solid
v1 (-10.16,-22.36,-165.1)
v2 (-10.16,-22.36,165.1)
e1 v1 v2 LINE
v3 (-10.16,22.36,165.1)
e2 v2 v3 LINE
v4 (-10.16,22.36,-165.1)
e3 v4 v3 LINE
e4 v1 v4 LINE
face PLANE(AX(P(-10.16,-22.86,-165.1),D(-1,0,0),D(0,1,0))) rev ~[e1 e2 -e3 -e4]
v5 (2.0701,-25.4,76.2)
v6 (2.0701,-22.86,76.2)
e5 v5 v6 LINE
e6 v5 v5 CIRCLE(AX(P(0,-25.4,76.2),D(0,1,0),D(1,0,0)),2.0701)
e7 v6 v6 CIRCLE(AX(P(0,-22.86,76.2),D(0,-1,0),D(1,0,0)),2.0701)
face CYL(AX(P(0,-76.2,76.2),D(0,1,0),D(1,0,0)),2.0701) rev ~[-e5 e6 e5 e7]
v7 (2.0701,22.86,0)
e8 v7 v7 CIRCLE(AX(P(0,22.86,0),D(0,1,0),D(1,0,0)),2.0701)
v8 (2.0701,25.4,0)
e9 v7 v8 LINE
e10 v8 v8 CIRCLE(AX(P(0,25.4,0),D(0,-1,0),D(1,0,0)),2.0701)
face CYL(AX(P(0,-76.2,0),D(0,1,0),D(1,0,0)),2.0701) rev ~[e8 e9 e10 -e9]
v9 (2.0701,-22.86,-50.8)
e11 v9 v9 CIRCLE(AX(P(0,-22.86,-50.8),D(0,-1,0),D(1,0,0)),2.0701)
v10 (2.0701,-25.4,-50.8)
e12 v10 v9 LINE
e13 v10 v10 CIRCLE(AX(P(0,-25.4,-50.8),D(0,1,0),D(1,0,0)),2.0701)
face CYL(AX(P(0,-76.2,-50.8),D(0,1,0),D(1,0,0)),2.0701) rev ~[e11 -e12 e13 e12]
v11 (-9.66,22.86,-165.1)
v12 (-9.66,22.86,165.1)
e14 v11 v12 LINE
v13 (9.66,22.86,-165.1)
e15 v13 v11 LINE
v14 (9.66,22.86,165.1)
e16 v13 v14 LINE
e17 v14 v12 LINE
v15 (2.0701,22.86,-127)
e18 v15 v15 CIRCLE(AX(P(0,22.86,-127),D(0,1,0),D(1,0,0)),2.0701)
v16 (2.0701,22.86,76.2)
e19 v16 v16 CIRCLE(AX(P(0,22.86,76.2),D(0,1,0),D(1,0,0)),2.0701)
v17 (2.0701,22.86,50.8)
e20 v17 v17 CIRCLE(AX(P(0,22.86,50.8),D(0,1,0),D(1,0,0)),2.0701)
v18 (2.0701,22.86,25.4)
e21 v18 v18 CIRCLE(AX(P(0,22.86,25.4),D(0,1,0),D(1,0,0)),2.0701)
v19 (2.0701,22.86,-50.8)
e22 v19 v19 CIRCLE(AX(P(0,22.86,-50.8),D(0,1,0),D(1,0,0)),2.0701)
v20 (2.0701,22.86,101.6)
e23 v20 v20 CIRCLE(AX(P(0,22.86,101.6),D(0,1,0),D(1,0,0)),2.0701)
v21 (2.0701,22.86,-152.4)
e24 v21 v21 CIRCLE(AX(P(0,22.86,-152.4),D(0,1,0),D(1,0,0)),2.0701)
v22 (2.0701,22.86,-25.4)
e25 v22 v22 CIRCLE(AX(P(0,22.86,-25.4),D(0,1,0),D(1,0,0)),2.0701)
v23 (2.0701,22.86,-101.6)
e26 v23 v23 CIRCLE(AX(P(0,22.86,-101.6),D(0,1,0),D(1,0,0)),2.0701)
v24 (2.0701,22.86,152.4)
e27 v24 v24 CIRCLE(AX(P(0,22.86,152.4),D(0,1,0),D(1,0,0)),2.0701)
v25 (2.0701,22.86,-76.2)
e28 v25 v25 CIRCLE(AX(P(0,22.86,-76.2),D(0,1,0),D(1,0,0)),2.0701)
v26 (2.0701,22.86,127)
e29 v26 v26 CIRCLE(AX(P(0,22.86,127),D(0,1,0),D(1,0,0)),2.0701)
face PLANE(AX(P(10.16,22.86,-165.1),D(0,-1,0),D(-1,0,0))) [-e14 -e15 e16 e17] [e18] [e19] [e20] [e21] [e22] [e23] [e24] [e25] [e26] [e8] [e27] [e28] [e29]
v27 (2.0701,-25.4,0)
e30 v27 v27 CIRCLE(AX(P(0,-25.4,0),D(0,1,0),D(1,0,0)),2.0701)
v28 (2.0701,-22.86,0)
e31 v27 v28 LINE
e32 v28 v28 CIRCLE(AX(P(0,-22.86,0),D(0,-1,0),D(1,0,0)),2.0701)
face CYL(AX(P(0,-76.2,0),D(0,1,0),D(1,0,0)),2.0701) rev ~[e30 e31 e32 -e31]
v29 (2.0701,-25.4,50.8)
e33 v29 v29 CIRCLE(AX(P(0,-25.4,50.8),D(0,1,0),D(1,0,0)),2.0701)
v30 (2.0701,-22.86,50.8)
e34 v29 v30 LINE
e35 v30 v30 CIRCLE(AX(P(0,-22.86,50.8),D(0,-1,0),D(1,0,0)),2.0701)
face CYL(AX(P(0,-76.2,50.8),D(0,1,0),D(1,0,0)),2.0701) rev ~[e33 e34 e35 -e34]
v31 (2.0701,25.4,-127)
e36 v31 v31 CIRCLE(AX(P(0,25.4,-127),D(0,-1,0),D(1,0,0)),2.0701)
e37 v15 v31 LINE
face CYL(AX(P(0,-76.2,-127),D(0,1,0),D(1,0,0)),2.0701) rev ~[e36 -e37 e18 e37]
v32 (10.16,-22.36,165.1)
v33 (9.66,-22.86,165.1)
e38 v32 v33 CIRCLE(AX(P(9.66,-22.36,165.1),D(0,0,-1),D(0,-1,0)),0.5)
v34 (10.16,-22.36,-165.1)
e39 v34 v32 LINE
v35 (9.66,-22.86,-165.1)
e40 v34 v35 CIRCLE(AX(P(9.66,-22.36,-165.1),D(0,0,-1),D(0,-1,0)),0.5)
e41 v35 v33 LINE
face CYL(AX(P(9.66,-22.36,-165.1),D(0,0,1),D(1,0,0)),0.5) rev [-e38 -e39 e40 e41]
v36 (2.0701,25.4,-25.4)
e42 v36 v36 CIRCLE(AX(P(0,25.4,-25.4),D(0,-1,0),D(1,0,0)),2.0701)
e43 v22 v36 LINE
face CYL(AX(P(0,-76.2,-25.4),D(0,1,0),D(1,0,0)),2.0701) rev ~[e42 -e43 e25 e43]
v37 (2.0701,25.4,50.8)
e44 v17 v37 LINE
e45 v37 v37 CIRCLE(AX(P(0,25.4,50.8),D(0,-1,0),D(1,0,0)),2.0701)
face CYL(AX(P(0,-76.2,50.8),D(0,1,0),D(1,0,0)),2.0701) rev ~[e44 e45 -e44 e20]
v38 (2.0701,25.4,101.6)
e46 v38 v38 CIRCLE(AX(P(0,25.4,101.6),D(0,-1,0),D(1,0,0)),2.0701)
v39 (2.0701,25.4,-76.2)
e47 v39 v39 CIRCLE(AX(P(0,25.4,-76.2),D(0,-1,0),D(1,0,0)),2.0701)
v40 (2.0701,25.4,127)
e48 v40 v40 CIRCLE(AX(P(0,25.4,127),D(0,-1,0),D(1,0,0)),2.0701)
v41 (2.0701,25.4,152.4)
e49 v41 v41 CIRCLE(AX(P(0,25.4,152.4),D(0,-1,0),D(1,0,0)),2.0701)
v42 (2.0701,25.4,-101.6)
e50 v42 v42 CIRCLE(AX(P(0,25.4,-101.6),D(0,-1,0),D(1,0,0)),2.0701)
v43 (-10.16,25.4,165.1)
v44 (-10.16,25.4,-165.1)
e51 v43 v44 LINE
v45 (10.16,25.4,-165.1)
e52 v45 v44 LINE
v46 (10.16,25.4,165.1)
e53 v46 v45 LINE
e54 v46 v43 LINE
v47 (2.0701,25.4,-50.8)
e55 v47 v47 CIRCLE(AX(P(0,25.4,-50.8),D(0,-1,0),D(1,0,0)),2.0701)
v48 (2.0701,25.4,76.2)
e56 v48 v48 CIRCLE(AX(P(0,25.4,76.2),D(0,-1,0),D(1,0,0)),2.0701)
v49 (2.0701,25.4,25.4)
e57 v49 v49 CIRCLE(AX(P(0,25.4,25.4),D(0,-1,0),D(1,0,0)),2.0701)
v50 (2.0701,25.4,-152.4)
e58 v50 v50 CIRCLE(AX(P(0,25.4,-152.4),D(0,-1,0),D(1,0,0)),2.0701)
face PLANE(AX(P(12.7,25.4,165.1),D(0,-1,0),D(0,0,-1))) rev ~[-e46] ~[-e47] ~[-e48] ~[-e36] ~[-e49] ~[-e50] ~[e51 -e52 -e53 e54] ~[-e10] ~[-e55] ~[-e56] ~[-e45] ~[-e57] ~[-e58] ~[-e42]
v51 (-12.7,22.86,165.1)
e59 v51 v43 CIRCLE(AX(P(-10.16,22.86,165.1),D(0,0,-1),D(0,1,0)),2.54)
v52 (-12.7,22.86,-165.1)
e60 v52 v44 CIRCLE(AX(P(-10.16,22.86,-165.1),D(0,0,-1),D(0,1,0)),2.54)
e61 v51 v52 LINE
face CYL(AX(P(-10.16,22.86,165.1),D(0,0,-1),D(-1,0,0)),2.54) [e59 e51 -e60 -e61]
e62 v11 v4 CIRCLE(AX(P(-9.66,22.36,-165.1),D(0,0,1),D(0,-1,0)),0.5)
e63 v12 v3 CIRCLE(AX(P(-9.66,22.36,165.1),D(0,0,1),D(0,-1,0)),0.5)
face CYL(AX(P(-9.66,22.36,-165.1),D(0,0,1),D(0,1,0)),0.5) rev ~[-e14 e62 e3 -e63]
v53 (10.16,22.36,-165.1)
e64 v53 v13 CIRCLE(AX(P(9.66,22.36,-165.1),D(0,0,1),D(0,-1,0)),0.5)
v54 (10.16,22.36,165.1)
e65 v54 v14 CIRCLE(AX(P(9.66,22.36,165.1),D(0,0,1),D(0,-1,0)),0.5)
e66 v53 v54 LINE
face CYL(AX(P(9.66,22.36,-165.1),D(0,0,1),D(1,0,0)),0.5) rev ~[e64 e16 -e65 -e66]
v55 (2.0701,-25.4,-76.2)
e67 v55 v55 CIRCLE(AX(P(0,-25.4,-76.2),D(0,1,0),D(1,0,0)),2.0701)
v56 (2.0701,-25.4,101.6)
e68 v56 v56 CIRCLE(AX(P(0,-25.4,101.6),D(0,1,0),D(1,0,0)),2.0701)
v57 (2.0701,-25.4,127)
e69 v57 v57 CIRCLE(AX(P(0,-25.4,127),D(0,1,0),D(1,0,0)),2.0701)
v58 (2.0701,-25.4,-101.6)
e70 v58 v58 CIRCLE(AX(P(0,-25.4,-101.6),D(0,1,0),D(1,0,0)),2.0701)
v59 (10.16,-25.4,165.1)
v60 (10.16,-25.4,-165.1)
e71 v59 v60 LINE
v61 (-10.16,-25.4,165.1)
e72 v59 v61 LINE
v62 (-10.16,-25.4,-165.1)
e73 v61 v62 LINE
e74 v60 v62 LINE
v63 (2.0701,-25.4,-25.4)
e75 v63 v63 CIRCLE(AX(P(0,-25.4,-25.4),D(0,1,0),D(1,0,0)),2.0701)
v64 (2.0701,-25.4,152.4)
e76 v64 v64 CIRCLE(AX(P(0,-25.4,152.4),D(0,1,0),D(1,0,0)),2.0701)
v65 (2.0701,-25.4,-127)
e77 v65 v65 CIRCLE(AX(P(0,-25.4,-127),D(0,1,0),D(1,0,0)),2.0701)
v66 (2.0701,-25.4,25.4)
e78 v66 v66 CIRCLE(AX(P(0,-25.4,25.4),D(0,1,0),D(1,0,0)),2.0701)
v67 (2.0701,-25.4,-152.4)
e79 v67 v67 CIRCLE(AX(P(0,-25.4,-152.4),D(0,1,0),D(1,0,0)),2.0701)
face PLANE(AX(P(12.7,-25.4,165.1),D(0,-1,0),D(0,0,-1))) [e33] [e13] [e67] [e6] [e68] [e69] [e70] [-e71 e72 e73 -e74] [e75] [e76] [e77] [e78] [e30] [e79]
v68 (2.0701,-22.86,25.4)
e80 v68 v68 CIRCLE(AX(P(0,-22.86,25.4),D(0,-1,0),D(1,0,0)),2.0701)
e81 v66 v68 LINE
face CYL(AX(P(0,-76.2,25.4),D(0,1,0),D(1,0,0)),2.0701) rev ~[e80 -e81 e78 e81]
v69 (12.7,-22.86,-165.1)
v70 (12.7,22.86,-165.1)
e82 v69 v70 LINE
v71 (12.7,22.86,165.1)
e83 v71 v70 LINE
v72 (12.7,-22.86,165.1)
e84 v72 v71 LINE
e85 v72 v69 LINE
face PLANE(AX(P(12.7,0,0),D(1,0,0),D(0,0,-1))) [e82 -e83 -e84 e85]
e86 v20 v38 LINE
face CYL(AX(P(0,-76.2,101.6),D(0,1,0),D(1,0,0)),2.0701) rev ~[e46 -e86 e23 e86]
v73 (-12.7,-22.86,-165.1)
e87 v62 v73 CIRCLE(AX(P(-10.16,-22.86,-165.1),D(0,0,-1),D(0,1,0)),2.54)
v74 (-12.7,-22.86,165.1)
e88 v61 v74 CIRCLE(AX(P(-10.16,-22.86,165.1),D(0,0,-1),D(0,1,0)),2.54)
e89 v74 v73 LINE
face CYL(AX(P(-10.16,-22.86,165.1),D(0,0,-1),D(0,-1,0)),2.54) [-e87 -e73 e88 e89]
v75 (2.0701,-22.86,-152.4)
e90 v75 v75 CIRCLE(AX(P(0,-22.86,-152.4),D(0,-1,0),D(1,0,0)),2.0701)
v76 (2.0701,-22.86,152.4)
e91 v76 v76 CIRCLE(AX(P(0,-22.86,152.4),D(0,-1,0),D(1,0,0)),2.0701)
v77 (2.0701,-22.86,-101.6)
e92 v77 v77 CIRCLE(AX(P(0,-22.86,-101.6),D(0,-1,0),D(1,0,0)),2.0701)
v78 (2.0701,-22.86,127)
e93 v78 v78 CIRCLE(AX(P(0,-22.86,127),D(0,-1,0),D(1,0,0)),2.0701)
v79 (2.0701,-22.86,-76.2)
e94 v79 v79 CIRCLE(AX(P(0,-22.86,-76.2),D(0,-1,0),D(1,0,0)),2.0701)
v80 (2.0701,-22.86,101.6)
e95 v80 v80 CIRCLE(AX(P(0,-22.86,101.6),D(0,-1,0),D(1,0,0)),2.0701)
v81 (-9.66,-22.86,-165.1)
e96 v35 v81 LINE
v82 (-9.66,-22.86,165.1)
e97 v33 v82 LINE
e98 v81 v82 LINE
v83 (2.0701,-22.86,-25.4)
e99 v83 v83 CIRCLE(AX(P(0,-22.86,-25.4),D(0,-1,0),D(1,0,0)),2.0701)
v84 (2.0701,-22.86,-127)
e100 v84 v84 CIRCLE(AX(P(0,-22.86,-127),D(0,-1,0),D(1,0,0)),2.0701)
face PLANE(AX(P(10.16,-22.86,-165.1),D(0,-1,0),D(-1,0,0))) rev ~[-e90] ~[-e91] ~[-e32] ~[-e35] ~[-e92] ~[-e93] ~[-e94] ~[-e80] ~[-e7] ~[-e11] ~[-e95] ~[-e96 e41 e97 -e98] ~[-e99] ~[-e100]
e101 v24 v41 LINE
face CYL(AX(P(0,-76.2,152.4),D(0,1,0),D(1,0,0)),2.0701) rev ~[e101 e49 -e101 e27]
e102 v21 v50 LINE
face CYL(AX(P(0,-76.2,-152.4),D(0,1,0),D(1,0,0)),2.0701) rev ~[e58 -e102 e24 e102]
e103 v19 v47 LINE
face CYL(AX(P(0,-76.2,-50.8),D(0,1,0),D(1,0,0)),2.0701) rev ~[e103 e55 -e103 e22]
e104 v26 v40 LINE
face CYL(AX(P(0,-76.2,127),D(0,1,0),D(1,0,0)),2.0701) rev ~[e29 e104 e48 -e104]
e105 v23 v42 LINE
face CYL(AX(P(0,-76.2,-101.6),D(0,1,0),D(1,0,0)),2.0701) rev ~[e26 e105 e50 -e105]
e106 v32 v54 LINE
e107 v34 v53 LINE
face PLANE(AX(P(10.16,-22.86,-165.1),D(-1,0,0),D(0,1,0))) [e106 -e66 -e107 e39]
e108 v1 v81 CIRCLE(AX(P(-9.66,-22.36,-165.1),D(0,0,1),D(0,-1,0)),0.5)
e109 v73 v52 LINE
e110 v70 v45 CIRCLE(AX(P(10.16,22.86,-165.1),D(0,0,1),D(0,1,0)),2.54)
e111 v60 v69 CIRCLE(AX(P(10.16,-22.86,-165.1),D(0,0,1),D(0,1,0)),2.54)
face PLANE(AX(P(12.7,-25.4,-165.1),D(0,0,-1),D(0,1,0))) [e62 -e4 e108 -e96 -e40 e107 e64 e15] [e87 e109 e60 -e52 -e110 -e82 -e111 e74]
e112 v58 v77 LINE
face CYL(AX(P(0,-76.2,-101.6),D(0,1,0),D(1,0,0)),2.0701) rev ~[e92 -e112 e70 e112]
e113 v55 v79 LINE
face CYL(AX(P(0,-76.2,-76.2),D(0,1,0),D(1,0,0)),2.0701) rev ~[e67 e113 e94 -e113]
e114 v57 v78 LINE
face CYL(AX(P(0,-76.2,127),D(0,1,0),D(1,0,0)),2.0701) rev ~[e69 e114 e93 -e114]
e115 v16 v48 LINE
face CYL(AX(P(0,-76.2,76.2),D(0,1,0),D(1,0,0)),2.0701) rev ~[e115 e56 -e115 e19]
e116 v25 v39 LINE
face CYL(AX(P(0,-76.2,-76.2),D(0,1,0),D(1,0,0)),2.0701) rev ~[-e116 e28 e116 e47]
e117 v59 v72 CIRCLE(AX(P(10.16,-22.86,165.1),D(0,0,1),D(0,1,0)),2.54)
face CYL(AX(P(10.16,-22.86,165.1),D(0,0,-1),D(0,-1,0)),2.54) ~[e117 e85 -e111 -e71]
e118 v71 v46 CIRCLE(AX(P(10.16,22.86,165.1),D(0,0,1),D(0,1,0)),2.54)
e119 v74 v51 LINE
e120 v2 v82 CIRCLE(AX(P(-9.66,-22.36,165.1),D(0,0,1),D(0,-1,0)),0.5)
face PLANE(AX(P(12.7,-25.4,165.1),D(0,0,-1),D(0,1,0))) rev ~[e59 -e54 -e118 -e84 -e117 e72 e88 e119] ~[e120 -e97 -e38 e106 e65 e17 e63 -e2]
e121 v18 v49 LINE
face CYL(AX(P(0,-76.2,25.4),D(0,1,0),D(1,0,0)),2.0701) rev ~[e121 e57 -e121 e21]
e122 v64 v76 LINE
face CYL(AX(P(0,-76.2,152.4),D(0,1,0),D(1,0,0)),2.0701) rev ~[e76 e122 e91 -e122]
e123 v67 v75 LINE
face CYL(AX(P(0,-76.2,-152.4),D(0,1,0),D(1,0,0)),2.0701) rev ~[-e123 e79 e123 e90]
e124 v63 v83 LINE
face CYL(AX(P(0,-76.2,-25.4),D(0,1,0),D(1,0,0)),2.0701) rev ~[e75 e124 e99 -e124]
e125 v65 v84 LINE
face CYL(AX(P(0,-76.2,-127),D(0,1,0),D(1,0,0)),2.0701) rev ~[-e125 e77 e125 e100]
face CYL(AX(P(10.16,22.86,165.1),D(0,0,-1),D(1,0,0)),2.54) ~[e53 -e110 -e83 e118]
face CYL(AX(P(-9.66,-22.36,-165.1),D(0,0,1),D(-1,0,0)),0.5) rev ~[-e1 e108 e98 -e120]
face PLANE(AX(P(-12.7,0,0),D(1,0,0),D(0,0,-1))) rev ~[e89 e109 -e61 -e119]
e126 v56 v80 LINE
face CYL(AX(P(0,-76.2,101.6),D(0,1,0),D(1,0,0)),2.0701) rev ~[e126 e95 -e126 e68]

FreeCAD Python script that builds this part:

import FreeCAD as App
import Part
import Sketcher

V = App.Vector
Q = App.Units.Quantity


def edges_at(feature, points):
    """Names of the edges that pass closest to the given points."""
    edges = feature.Shape.Edges
    near = lambda p: min(range(len(edges)), key=lambda i: edges[i].distToShape(Part.Vertex(*p))[0])
    return sorted({f"Edge{near(p) + 1}" for p in points})


def add_polygon(sketch, points):
    """Adds a closed chain of lines whose ends are joined by coincident constraints."""
    first, n = sketch.GeometryCount, len(points)
    for a, b in zip(points, points[1:] + points[:1]):
        sketch.addGeometry(Part.LineSegment(App.Vector(*a, 0), App.Vector(*b, 0)), False)
    for i in range(n):
        sketch.addConstraint(Sketcher.Constraint("Coincident", first + i, 2, first + (i + 1) % n, 1))

doc = App.newDocument("Part")
body = doc.addObject("PartDesign::Body", "Body")

sketch1 = body.newObject("Sketcher::SketchObject", "Sketch")
sketch1.AttachmentSupport = (doc.getObject("YZ_Plane"), [""])
sketch1.MapMode = "FlatFace"
sketch1.AttachmentOffset = App.Placement(V(0, 0, 0.5 * 25.4), App.Rotation())
add_polygon(sketch1, [(25, 165), (-25, 165), (-25, -165), (25, -165)])
sketch1.addConstraint(Sketcher.Constraint("Horizontal", 0))
sketch1.addConstraint(Sketcher.Constraint("Vertical", 1))
sketch1.addConstraint(Sketcher.Constraint("Horizontal", 2))
sketch1.addConstraint(Sketcher.Constraint("Vertical", 3))
sketch1.addConstraint(Sketcher.Constraint("Symmetric", 0, 2, 2, 2, -1, 1))
sketch1.addConstraint(Sketcher.Constraint("DistanceX", 0, 2, 0, 1, Q("2 in")))
sketch1.addConstraint(Sketcher.Constraint("DistanceY", 1, 2, 1, 1, Q("13 in")))
pad1 = body.newObject("PartDesign::Pad", "Pad")
pad1.Profile = sketch1
pad1.Length = Q("1 in")
pad1.Reversed = True

sketch2 = body.newObject("Sketcher::SketchObject", "Sketch001")
sketch2.AttachmentSupport = (doc.getObject("XY_Plane"), [""])
sketch2.MapMode = "FlatFace"
sketch2.AttachmentOffset = App.Placement(V(0, 0, -6.5 * 25.4), App.Rotation())
add_polygon(sketch2, [(10, 23), (10, -23), (-10, -23), (-10, 23)])
sketch2.addConstraint(Sketcher.Constraint("Vertical", 0))
sketch2.addConstraint(Sketcher.Constraint("Horizontal", 1))
sketch2.addConstraint(Sketcher.Constraint("Vertical", 2))
sketch2.addConstraint(Sketcher.Constraint("Horizontal", 3))
sketch2.addConstraint(Sketcher.Constraint("Symmetric", 0, 2, 2, 2, -1, 1))
sketch2.addConstraint(Sketcher.Constraint("DistanceX", 1, 2, 1, 1, Q("0.8 in")))
sketch2.addConstraint(Sketcher.Constraint("DistanceY", 0, 2, 0, 1, Q("1.8 in")))
pocket1 = body.newObject("PartDesign::Pocket", "Pocket")
pocket1.Profile = sketch2
pocket1.Type = "ThroughAll"
pocket1.Reversed = True

sketch3 = body.newObject("Sketcher::SketchObject", "Sketch002")
sketch3.AttachmentSupport = (doc.getObject("XZ_Plane"), [""])
sketch3.MapMode = "FlatFace"
sketch3.AttachmentOffset = App.Placement(V(0, 0, 1 * 25.4), App.Rotation())
sketch3.addGeometry(Part.Circle(V(0, -711.2, 0), V(0, 0, 1), 2.1), False)
sketch3.addGeometry(Part.Circle(V(0, -736.6, 0), V(0, 0, 1), 2.1), False)
sketch3.addGeometry(Part.Circle(V(0, -685.8, 0), V(0, 0, 1), 2.1), False)
sketch3.addGeometry(Part.Circle(V(0, -660.4, 0), V(0, 0, 1), 2.1), False)
sketch3.addGeometry(Part.Circle(V(0, -635, 0), V(0, 0, 1), 2.1), False)
sketch3.addGeometry(Part.Circle(V(0, -609.6, 0), V(0, 0, 1), 2.1), False)
sketch3.addGeometry(Part.Circle(V(0, -584.2, 0), V(0, 0, 1), 2.1), False)
sketch3.addGeometry(Part.Circle(V(0, -558.8, 0), V(0, 0, 1), 2.1), False)
sketch3.addGeometry(Part.Circle(V(0, -533.4, 0), V(0, 0, 1), 2.1), False)
sketch3.addGeometry(Part.Circle(V(0, -508, 0), V(0, 0, 1), 2.1), False)
sketch3.addGeometry(Part.Circle(V(0, -482.6, 0), V(0, 0, 1), 2.1), False)
sketch3.addGeometry(Part.Circle(V(0, -457.2, 0), V(0, 0, 1), 2.1), False)
sketch3.addGeometry(Part.Circle(V(0, -431.8, 0), V(0, 0, 1), 2.1), False)
sketch3.addGeometry(Part.Circle(V(0, -406.4, 0), V(0, 0, 1), 2.1), False)
sketch3.addGeometry(Part.Circle(V(0, -381, 0), V(0, 0, 1), 2.1), False)
sketch3.addGeometry(Part.Circle(V(0, -355.6, 0), V(0, 0, 1), 2.1), False)
sketch3.addGeometry(Part.Circle(V(0, -330.2, 0), V(0, 0, 1), 2.1), False)
sketch3.addGeometry(Part.Circle(V(0, -304.8, 0), V(0, 0, 1), 2.1), False)
sketch3.addGeometry(Part.Circle(V(0, -279.4, 0), V(0, 0, 1), 2.1), False)
sketch3.addGeometry(Part.Circle(V(0, -254, 0), V(0, 0, 1), 2.1), False)
sketch3.addGeometry(Part.Circle(V(0, -228.6, 0), V(0, 0, 1), 2.1), False)
sketch3.addGeometry(Part.Circle(V(0, -203.2, 0), V(0, 0, 1), 2.1), False)
sketch3.addGeometry(Part.Circle(V(0, -177.8, 0), V(0, 0, 1), 2.1), False)
sketch3.addGeometry(Part.Circle(V(0, -152.4, 0), V(0, 0, 1), 2.1), False)
sketch3.addGeometry(Part.Circle(V(0, -127, 0), V(0, 0, 1), 2.1), False)
sketch3.addGeometry(Part.Circle(V(0, -101.6, 0), V(0, 0, 1), 2.1), False)
sketch3.addGeometry(Part.Circle(V(0, -76.2, 0), V(0, 0, 1), 2.1), False)
sketch3.addGeometry(Part.Circle(V(0, -50.8, 0), V(0, 0, 1), 2.1), False)
sketch3.addGeometry(Part.Circle(V(0, -25.4, 0), V(0, 0, 1), 2.1), False)
sketch3.addGeometry(Part.Circle(V(0, 0, 0), V(0, 0, 1), 2.1), False)
sketch3.addGeometry(Part.Circle(V(0, 25.4, 0), V(0, 0, 1), 2.1), False)
sketch3.addGeometry(Part.Circle(V(0, 50.8, 0), V(0, 0, 1), 2.1), False)
sketch3.addGeometry(Part.Circle(V(0, 76.2, 0), V(0, 0, 1), 2.1), False)
sketch3.addGeometry(Part.Circle(V(0, 101.6, 0), V(0, 0, 1), 2.1), False)
sketch3.addGeometry(Part.Circle(V(0, 127, 0), V(0, 0, 1), 2.1), False)
sketch3.addGeometry(Part.Circle(V(0, 152.4, 0), V(0, 0, 1), 2.1), False)
sketch3.addGeometry(Part.Circle(V(0, 177.8, 0), V(0, 0, 1), 2.1), False)
sketch3.addGeometry(Part.Circle(V(0, 203.2, 0), V(0, 0, 1), 2.1), False)
sketch3.addGeometry(Part.Circle(V(0, 228.6, 0), V(0, 0, 1), 2.1), False)
sketch3.addGeometry(Part.Circle(V(0, 254, 0), V(0, 0, 1), 2.1), False)
sketch3.addGeometry(Part.Circle(V(0, 279.4, 0), V(0, 0, 1), 2.1), False)
sketch3.addGeometry(Part.Circle(V(0, 304.8, 0), V(0, 0, 1), 2.1), False)
sketch3.addGeometry(Part.Circle(V(0, 330.2, 0), V(0, 0, 1), 2.1), False)
sketch3.addGeometry(Part.Circle(V(0, 355.6, 0), V(0, 0, 1), 2.1), False)
sketch3.addGeometry(Part.Circle(V(0, 381, 0), V(0, 0, 1), 2.1), False)
sketch3.addGeometry(Part.Circle(V(0, 406.4, 0), V(0, 0, 1), 2.1), False)
sketch3.addGeometry(Part.Circle(V(0, 431.8, 0), V(0, 0, 1), 2.1), False)
sketch3.addGeometry(Part.Circle(V(0, 457.2, 0), V(0, 0, 1), 2.1), False)
sketch3.addGeometry(Part.Circle(V(0, 482.6, 0), V(0, 0, 1), 2.1), False)
sketch3.addGeometry(Part.Circle(V(0, 508, 0), V(0, 0, 1), 2.1), False)
sketch3.addGeometry(Part.Circle(V(0, 533.4, 0), V(0, 0, 1), 2.1), False)
sketch3.addGeometry(Part.Circle(V(0, 558.8, 0), V(0, 0, 1), 2.1), False)
sketch3.addGeometry(Part.Circle(V(0, 584.2, 0), V(0, 0, 1), 2.1), False)
sketch3.addGeometry(Part.Circle(V(0, 609.6, 0), V(0, 0, 1), 2.1), False)
sketch3.addGeometry(Part.Circle(V(0, 635, 0), V(0, 0, 1), 2.1), False)
sketch3.addGeometry(Part.Circle(V(0, 660.4, 0), V(0, 0, 1), 2.1), False)
sketch3.addGeometry(Part.Circle(V(0, 685.8, 0), V(0, 0, 1), 2.1), False)
sketch3.addGeometry(Part.Circle(V(0, 711.2, 0), V(0, 0, 1), 2.1), False)
sketch3.addGeometry(Part.Circle(V(0, 736.6, 0), V(0, 0, 1), 2.1), False)
sketch3.addConstraint(Sketcher.Constraint("Coincident", 29, 3, -1, 1))
sketch3.addConstraint(Sketcher.Constraint("Equal", 0, 1))
sketch3.addConstraint(Sketcher.Constraint("Equal", 1, 2))
sketch3.addConstraint(Sketcher.Constraint("Equal", 2, 3))
sketch3.addConstraint(Sketcher.Constraint("Equal", 3, 4))
sketch3.addConstraint(Sketcher.Constraint("Equal", 4, 5))
sketch3.addConstraint(Sketcher.Constraint("Equal", 5, 6))
sketch3.addConstraint(Sketcher.Constraint("Equal", 6, 7))
sketch3.addConstraint(Sketcher.Constraint("Equal", 7, 8))
sketch3.addConstraint(Sketcher.Constraint("Equal", 8, 9))
sketch3.addConstraint(Sketcher.Constraint("Equal", 9, 10))
sketch3.addConstraint(Sketcher.Constraint("Equal", 10, 11))
sketch3.addConstraint(Sketcher.Constraint("Equal", 11, 12))
sketch3.addConstraint(Sketcher.Constraint("Equal", 12, 13))
sketch3.addConstraint(Sketcher.Constraint("Equal", 13, 14))
sketch3.addConstraint(Sketcher.Constraint("Equal", 14, 15))
sketch3.addConstraint(Sketcher.Constraint("Equal", 15, 16))
sketch3.addConstraint(Sketcher.Constraint("Equal", 16, 17))
sketch3.addConstraint(Sketcher.Constraint("Equal", 17, 18))
sketch3.addConstraint(Sketcher.Constraint("Equal", 18, 19))
sketch3.addConstraint(Sketcher.Constraint("Equal", 19, 20))
sketch3.addConstraint(Sketcher.Constraint("Equal", 20, 21))
sketch3.addConstraint(Sketcher.Constraint("Equal", 21, 22))
sketch3.addConstraint(Sketcher.Constraint("Equal", 22, 23))
sketch3.addConstraint(Sketcher.Constraint("Equal", 23, 24))
sketch3.addConstraint(Sketcher.Constraint("Equal", 24, 25))
sketch3.addConstraint(Sketcher.Constraint("Equal", 25, 26))
sketch3.addConstraint(Sketcher.Constraint("Equal", 26, 27))
sketch3.addConstraint(Sketcher.Constraint("Equal", 27, 28))
sketch3.addConstraint(Sketcher.Constraint("Equal", 28, 29))
sketch3.addConstraint(Sketcher.Constraint("Equal", 29, 30))
sketch3.addConstraint(Sketcher.Constraint("Equal", 30, 31))
sketch3.addConstraint(Sketcher.Constraint("Equal", 31, 32))
sketch3.addConstraint(Sketcher.Constraint("Equal", 32, 33))
sketch3.addConstraint(Sketcher.Constraint("Equal", 33, 34))
sketch3.addConstraint(Sketcher.Constraint("Equal", 34, 35))
sketch3.addConstraint(Sketcher.Constraint("Equal", 35, 36))
sketch3.addConstraint(Sketcher.Constraint("Equal", 36, 37))
sketch3.addConstraint(Sketcher.Constraint("Equal", 37, 38))
sketch3.addConstraint(Sketcher.Constraint("Equal", 38, 39))
sketch3.addConstraint(Sketcher.Constraint("Equal", 39, 40))
sketch3.addConstraint(Sketcher.Constraint("Equal", 40, 41))
sketch3.addConstraint(Sketcher.Constraint("Equal", 41, 42))
sketch3.addConstraint(Sketcher.Constraint("Equal", 42, 43))
sketch3.addConstraint(Sketcher.Constraint("Equal", 43, 44))
sketch3.addConstraint(Sketcher.Constraint("Equal", 44, 45))
sketch3.addConstraint(Sketcher.Constraint("Equal", 45, 46))
sketch3.addConstraint(Sketcher.Constraint("Equal", 46, 47))
sketch3.addConstraint(Sketcher.Constraint("Equal", 47, 48))
sketch3.addConstraint(Sketcher.Constraint("Equal", 48, 49))
sketch3.addConstraint(Sketcher.Constraint("Equal", 49, 50))
sketch3.addConstraint(Sketcher.Constraint("Equal", 50, 51))
sketch3.addConstraint(Sketcher.Constraint("Equal", 51, 52))
sketch3.addConstraint(Sketcher.Constraint("Equal", 52, 53))
sketch3.addConstraint(Sketcher.Constraint("Equal", 53, 54))
sketch3.addConstraint(Sketcher.Constraint("Equal", 54, 55))
sketch3.addConstraint(Sketcher.Constraint("Equal", 55, 56))
sketch3.addConstraint(Sketcher.Constraint("Equal", 56, 57))
sketch3.addConstraint(Sketcher.Constraint("Equal", 57, 58))
sketch3.addConstraint(Sketcher.Constraint("Symmetric", 28, 3, 30, 3, -1, 1))
sketch3.addConstraint(Sketcher.Constraint("Symmetric", 27, 3, 31, 3, -1, 1))
sketch3.addConstraint(Sketcher.Constraint("Symmetric", 26, 3, 32, 3, -1, 1))
sketch3.addConstraint(Sketcher.Constraint("Symmetric", 25, 3, 33, 3, -1, 1))
sketch3.addConstraint(Sketcher.Constraint("Symmetric", 24, 3, 34, 3, -1, 1))
sketch3.addConstraint(Sketcher.Constraint("Symmetric", 23, 3, 35, 3, -1, 1))
sketch3.addConstraint(Sketcher.Constraint("Symmetric", 22, 3, 36, 3, -1, 1))
sketch3.addConstraint(Sketcher.Constraint("Symmetric", 21, 3, 37, 3, -1, 1))
sketch3.addConstraint(Sketcher.Constraint("Symmetric", 20, 3, 38, 3, -1, 1))
sketch3.addConstraint(Sketcher.Constraint("Symmetric", 19, 3, 39, 3, -1, 1))
sketch3.addConstraint(Sketcher.Constraint("Symmetric", 18, 3, 40, 3, -1, 1))
sketch3.addConstraint(Sketcher.Constraint("Symmetric", 17, 3, 41, 3, -1, 1))
sketch3.addConstraint(Sketcher.Constraint("Symmetric", 16, 3, 42, 3, -1, 1))
sketch3.addConstraint(Sketcher.Constraint("Symmetric", 15, 3, 43, 3, -1, 1))
sketch3.addConstraint(Sketcher.Constraint("Symmetric", 14, 3, 44, 3, -1, 1))
sketch3.addConstraint(Sketcher.Constraint("Symmetric", 13, 3, 45, 3, -1, 1))
sketch3.addConstraint(Sketcher.Constraint("Symmetric", 12, 3, 46, 3, -1, 1))
sketch3.addConstraint(Sketcher.Constraint("Symmetric", 11, 3, 47, 3, -1, 1))
sketch3.addConstraint(Sketcher.Constraint("Symmetric", 10, 3, 48, 3, -1, 1))
sketch3.addConstraint(Sketcher.Constraint("Symmetric", 9, 3, 49, 3, -1, 1))
sketch3.addConstraint(Sketcher.Constraint("Symmetric", 8, 3, 50, 3, -1, 1))
sketch3.addConstraint(Sketcher.Constraint("Symmetric", 7, 3, 51, 3, -1, 1))
sketch3.addConstraint(Sketcher.Constraint("Symmetric", 6, 3, 52, 3, -1, 1))
sketch3.addConstraint(Sketcher.Constraint("Symmetric", 5, 3, 53, 3, -1, 1))
sketch3.addConstraint(Sketcher.Constraint("Symmetric", 4, 3, 54, 3, -1, 1))
sketch3.addConstraint(Sketcher.Constraint("Symmetric", 3, 3, 55, 3, -1, 1))
sketch3.addConstraint(Sketcher.Constraint("Symmetric", 2, 3, 56, 3, -1, 1))
sketch3.addConstraint(Sketcher.Constraint("Symmetric", 0, 3, 57, 3, -1, 1))
sketch3.addConstraint(Sketcher.Constraint("Symmetric", 1, 3, 58, 3, -1, 1))
sketch3.addConstraint(Sketcher.Constraint("PointOnObject", 0, 3, -2))
sketch3.addConstraint(Sketcher.Constraint("PointOnObject", 1, 3, -2))
sketch3.addConstraint(Sketcher.Constraint("PointOnObject", 2, 3, -2))
sketch3.addConstraint(Sketcher.Constraint("PointOnObject", 3, 3, -2))
sketch3.addConstraint(Sketcher.Constraint("PointOnObject", 4, 3, -2))
sketch3.addConstraint(Sketcher.Constraint("PointOnObject", 5, 3, -2))
sketch3.addConstraint(Sketcher.Constraint("PointOnObject", 6, 3, -2))
sketch3.addConstraint(Sketcher.Constraint("PointOnObject", 7, 3, -2))
sketch3.addConstraint(Sketcher.Constraint("PointOnObject", 8, 3, -2))
sketch3.addConstraint(Sketcher.Constraint("PointOnObject", 9, 3, -2))
sketch3.addConstraint(Sketcher.Constraint("PointOnObject", 10, 3, -2))
sketch3.addConstraint(Sketcher.Constraint("PointOnObject", 11, 3, -2))
sketch3.addConstraint(Sketcher.Constraint("PointOnObject", 12, 3, -2))
sketch3.addConstraint(Sketcher.Constraint("PointOnObject", 13, 3, -2))
sketch3.addConstraint(Sketcher.Constraint("PointOnObject", 14, 3, -2))
sketch3.addConstraint(Sketcher.Constraint("PointOnObject", 15, 3, -2))
sketch3.addConstraint(Sketcher.Constraint("PointOnObject", 16, 3, -2))
sketch3.addConstraint(Sketcher.Constraint("PointOnObject", 17, 3, -2))
sketch3.addConstraint(Sketcher.Constraint("PointOnObject", 18, 3, -2))
sketch3.addConstraint(Sketcher.Constraint("PointOnObject", 19, 3, -2))
sketch3.addConstraint(Sketcher.Constraint("PointOnObject", 20, 3, -2))
sketch3.addConstraint(Sketcher.Constraint("PointOnObject", 21, 3, -2))
sketch3.addConstraint(Sketcher.Constraint("PointOnObject", 22, 3, -2))
sketch3.addConstraint(Sketcher.Constraint("PointOnObject", 23, 3, -2))
sketch3.addConstraint(Sketcher.Constraint("PointOnObject", 24, 3, -2))
sketch3.addConstraint(Sketcher.Constraint("PointOnObject", 25, 3, -2))
sketch3.addConstraint(Sketcher.Constraint("PointOnObject", 26, 3, -2))
sketch3.addConstraint(Sketcher.Constraint("PointOnObject", 27, 3, -2))
sketch3.addConstraint(Sketcher.Constraint("PointOnObject", 28, 3, -2))
sketch3.addConstraint(Sketcher.Constraint("Diameter", 0, Q("0.163 in")))
sketch3.addConstraint(Sketcher.Constraint("DistanceY", 0, 3, -1, 1, Q("28 in")))
sketch3.addConstraint(Sketcher.Constraint("DistanceY", 1, 3, -1, 1, Q("29 in")))
sketch3.addConstraint(Sketcher.Constraint("DistanceY", 2, 3, -1, 1, Q("27 in")))
sketch3.addConstraint(Sketcher.Constraint("DistanceY", 3, 3, -1, 1, Q("26 in")))
sketch3.addConstraint(Sketcher.Constraint("DistanceY", 4, 3, -1, 1, Q("25 in")))
sketch3.addConstraint(Sketcher.Constraint("DistanceY", 5, 3, -1, 1, Q("24 in")))
sketch3.addConstraint(Sketcher.Constraint("DistanceY", 6, 3, -1, 1, Q("23 in")))
sketch3.addConstraint(Sketcher.Constraint("DistanceY", 7, 3, -1, 1, Q("22 in")))
sketch3.addConstraint(Sketcher.Constraint("DistanceY", 8, 3, -1, 1, Q("21 in")))
sketch3.addConstraint(Sketcher.Constraint("DistanceY", 9, 3, -1, 1, Q("20 in")))
sketch3.addConstraint(Sketcher.Constraint("DistanceY", 10, 3, -1, 1, Q("19 in")))
sketch3.addConstraint(Sketcher.Constraint("DistanceY", 11, 3, -1, 1, Q("18 in")))
sketch3.addConstraint(Sketcher.Constraint("DistanceY", 12, 3, -1, 1, Q("17 in")))
sketch3.addConstraint(Sketcher.Constraint("DistanceY", 13, 3, -1, 1, Q("16 in")))
sketch3.addConstraint(Sketcher.Constraint("DistanceY", 14, 3, -1, 1, Q("15 in")))
sketch3.addConstraint(Sketcher.Constraint("DistanceY", 15, 3, -1, 1, Q("14 in")))
sketch3.addConstraint(Sketcher.Constraint("DistanceY", 16, 3, -1, 1, Q("13 in")))
sketch3.addConstraint(Sketcher.Constraint("DistanceY", 17, 3, -1, 1, Q("12 in")))
sketch3.addConstraint(Sketcher.Constraint("DistanceY", 18, 3, -1, 1, Q("11 in")))
sketch3.addConstraint(Sketcher.Constraint("DistanceY", 19, 3, -1, 1, Q("10 in")))
sketch3.addConstraint(Sketcher.Constraint("DistanceY", 20, 3, -1, 1, Q("9 in")))
sketch3.addConstraint(Sketcher.Constraint("DistanceY", 21, 3, -1, 1, Q("8 in")))
sketch3.addConstraint(Sketcher.Constraint("DistanceY", 22, 3, -1, 1, Q("7 in")))
sketch3.addConstraint(Sketcher.Constraint("DistanceY", 23, 3, -1, 1, Q("6 in")))
sketch3.addConstraint(Sketcher.Constraint("DistanceY", 24, 3, -1, 1, Q("5 in")))
sketch3.addConstraint(Sketcher.Constraint("DistanceY", 25, 3, -1, 1, Q("4 in")))
sketch3.addConstraint(Sketcher.Constraint("DistanceY", 26, 3, -1, 1, Q("3 in")))
sketch3.addConstraint(Sketcher.Constraint("DistanceY", 27, 3, -1, 1, Q("2 in")))
sketch3.addConstraint(Sketcher.Constraint("DistanceY", 28, 3, -1, 1, Q("1 in")))
doc.recompute()
hole = body.newObject("PartDesign::Hole", "Hole")
hole.Profile = sketch3
hole.ThreadType = "None"
hole.Diameter = Q("0.163 in")
hole.DepthType = "Dimension"
hole.Depth = Q("2 in")
hole.DrillPoint = "Flat"

sketch4 = body.newObject("Sketcher::SketchObject", "Sketch003")
sketch4.AttachmentSupport = (doc.getObject("XZ_Plane"), [""])
sketch4.MapMode = "FlatFace"
sketch4.AttachmentOffset = App.Placement(V(0, 0, -1 * 25.4), App.Rotation())
sketch4.addGeometry(Part.Circle(V(0, -711.2, 0), V(0, 0, 1), 2.1), False)
sketch4.addGeometry(Part.Circle(V(0, -736.6, 0), V(0, 0, 1), 2.1), False)
sketch4.addGeometry(Part.Circle(V(0, -685.8, 0), V(0, 0, 1), 2.1), False)
sketch4.addGeometry(Part.Circle(V(0, -660.4, 0), V(0, 0, 1), 2.1), False)
sketch4.addGeometry(Part.Circle(V(0, -635, 0), V(0, 0, 1), 2.1), False)
sketch4.addGeometry(Part.Circle(V(0, -609.6, 0), V(0, 0, 1), 2.1), False)
sketch4.addGeometry(Part.Circle(V(0, -584.2, 0), V(0, 0, 1), 2.1), False)
sketch4.addGeometry(Part.Circle(V(0, -558.8, 0), V(0, 0, 1), 2.1), False)
sketch4.addGeometry(Part.Circle(V(0, -533.4, 0), V(0, 0, 1), 2.1), False)
sketch4.addGeometry(Part.Circle(V(0, -508, 0), V(0, 0, 1), 2.1), False)
sketch4.addGeometry(Part.Circle(V(0, -482.6, 0), V(0, 0, 1), 2.1), False)
sketch4.addGeometry(Part.Circle(V(0, -457.2, 0), V(0, 0, 1), 2.1), False)
sketch4.addGeometry(Part.Circle(V(0, -431.8, 0), V(0, 0, 1), 2.1), False)
sketch4.addGeometry(Part.Circle(V(0, -406.4, 0), V(0, 0, 1), 2.1), False)
sketch4.addGeometry(Part.Circle(V(0, -381, 0), V(0, 0, 1), 2.1), False)
sketch4.addGeometry(Part.Circle(V(0, -355.6, 0), V(0, 0, 1), 2.1), False)
sketch4.addGeometry(Part.Circle(V(0, -330.2, 0), V(0, 0, 1), 2.1), False)
sketch4.addGeometry(Part.Circle(V(0, -304.8, 0), V(0, 0, 1), 2.1), False)
sketch4.addGeometry(Part.Circle(V(0, -279.4, 0), V(0, 0, 1), 2.1), False)
sketch4.addGeometry(Part.Circle(V(0, -254, 0), V(0, 0, 1), 2.1), False)
sketch4.addGeometry(Part.Circle(V(0, -228.6, 0), V(0, 0, 1), 2.1), False)
sketch4.addGeometry(Part.Circle(V(0, -203.2, 0), V(0, 0, 1), 2.1), False)
sketch4.addGeometry(Part.Circle(V(0, -177.8, 0), V(0, 0, 1), 2.1), False)
sketch4.addGeometry(Part.Circle(V(0, -152.4, 0), V(0, 0, 1), 2.1), False)
sketch4.addGeometry(Part.Circle(V(0, -127, 0), V(0, 0, 1), 2.1), False)
sketch4.addGeometry(Part.Circle(V(0, -101.6, 0), V(0, 0, 1), 2.1), False)
sketch4.addGeometry(Part.Circle(V(0, -76.2, 0), V(0, 0, 1), 2.1), False)
sketch4.addGeometry(Part.Circle(V(0, -50.8, 0), V(0, 0, 1), 2.1), False)
sketch4.addGeometry(Part.Circle(V(0, -25.4, 0), V(0, 0, 1), 2.1), False)
sketch4.addGeometry(Part.Circle(V(0, 0, 0), V(0, 0, 1), 2.1), False)
sketch4.addGeometry(Part.Circle(V(0, 25.4, 0), V(0, 0, 1), 2.1), False)
sketch4.addGeometry(Part.Circle(V(0, 50.8, 0), V(0, 0, 1), 2.1), False)
sketch4.addGeometry(Part.Circle(V(0, 76.2, 0), V(0, 0, 1), 2.1), False)
sketch4.addGeometry(Part.Circle(V(0, 101.6, 0), V(0, 0, 1), 2.1), False)
sketch4.addGeometry(Part.Circle(V(0, 127, 0), V(0, 0, 1), 2.1), False)
sketch4.addGeometry(Part.Circle(V(0, 152.4, 0), V(0, 0, 1), 2.1), False)
sketch4.addGeometry(Part.Circle(V(0, 177.8, 0), V(0, 0, 1), 2.1), False)
sketch4.addGeometry(Part.Circle(V(0, 203.2, 0), V(0, 0, 1), 2.1), False)
sketch4.addGeometry(Part.Circle(V(0, 228.6, 0), V(0, 0, 1), 2.1), False)
sketch4.addGeometry(Part.Circle(V(0, 254, 0), V(0, 0, 1), 2.1), False)
sketch4.addGeometry(Part.Circle(V(0, 279.4, 0), V(0, 0, 1), 2.1), False)
sketch4.addGeometry(Part.Circle(V(0, 304.8, 0), V(0, 0, 1), 2.1), False)
sketch4.addGeometry(Part.Circle(V(0, 330.2, 0), V(0, 0, 1), 2.1), False)
sketch4.addGeometry(Part.Circle(V(0, 355.6, 0), V(0, 0, 1), 2.1), False)
sketch4.addGeometry(Part.Circle(V(0, 381, 0), V(0, 0, 1), 2.1), False)
sketch4.addGeometry(Part.Circle(V(0, 406.4, 0), V(0, 0, 1), 2.1), False)
sketch4.addGeometry(Part.Circle(V(0, 431.8, 0), V(0, 0, 1), 2.1), False)
sketch4.addGeometry(Part.Circle(V(0, 457.2, 0), V(0, 0, 1), 2.1), False)
sketch4.addGeometry(Part.Circle(V(0, 482.6, 0), V(0, 0, 1), 2.1), False)
sketch4.addGeometry(Part.Circle(V(0, 508, 0), V(0, 0, 1), 2.1), False)
sketch4.addGeometry(Part.Circle(V(0, 533.4, 0), V(0, 0, 1), 2.1), False)
sketch4.addGeometry(Part.Circle(V(0, 558.8, 0), V(0, 0, 1), 2.1), False)
sketch4.addGeometry(Part.Circle(V(0, 584.2, 0), V(0, 0, 1), 2.1), False)
sketch4.addGeometry(Part.Circle(V(0, 609.6, 0), V(0, 0, 1), 2.1), False)
sketch4.addGeometry(Part.Circle(V(0, 635, 0), V(0, 0, 1), 2.1), False)
sketch4.addGeometry(Part.Circle(V(0, 660.4, 0), V(0, 0, 1), 2.1), False)
sketch4.addGeometry(Part.Circle(V(0, 685.8, 0), V(0, 0, 1), 2.1), False)
sketch4.addGeometry(Part.Circle(V(0, 711.2, 0), V(0, 0, 1), 2.1), False)
sketch4.addGeometry(Part.Circle(V(0, 736.6, 0), V(0, 0, 1), 2.1), False)
sketch4.addConstraint(Sketcher.Constraint("Coincident", 29, 3, -1, 1))
sketch4.addConstraint(Sketcher.Constraint("Equal", 0, 1))
sketch4.addConstraint(Sketcher.Constraint("Equal", 1, 2))
sketch4.addConstraint(Sketcher.Constraint("Equal", 2, 3))
sketch4.addConstraint(Sketcher.Constraint("Equal", 3, 4))
sketch4.addConstraint(Sketcher.Constraint("Equal", 4, 5))
sketch4.addConstraint(Sketcher.Constraint("Equal", 5, 6))
sketch4.addConstraint(Sketcher.Constraint("Equal", 6, 7))
sketch4.addConstraint(Sketcher.Constraint("Equal", 7, 8))
sketch4.addConstraint(Sketcher.Constraint("Equal", 8, 9))
sketch4.addConstraint(Sketcher.Constraint("Equal", 9, 10))
sketch4.addConstraint(Sketcher.Constraint("Equal", 10, 11))
sketch4.addConstraint(Sketcher.Constraint("Equal", 11, 12))
sketch4.addConstraint(Sketcher.Constraint("Equal", 12, 13))
sketch4.addConstraint(Sketcher.Constraint("Equal", 13, 14))
sketch4.addConstraint(Sketcher.Constraint("Equal", 14, 15))
sketch4.addConstraint(Sketcher.Constraint("Equal", 15, 16))
sketch4.addConstraint(Sketcher.Constraint("Equal", 16, 17))
sketch4.addConstraint(Sketcher.Constraint("Equal", 17, 18))
sketch4.addConstraint(Sketcher.Constraint("Equal", 18, 19))
sketch4.addConstraint(Sketcher.Constraint("Equal", 19, 20))
sketch4.addConstraint(Sketcher.Constraint("Equal", 20, 21))
sketch4.addConstraint(Sketcher.Constraint("Equal", 21, 22))
sketch4.addConstraint(Sketcher.Constraint("Equal", 22, 23))
sketch4.addConstraint(Sketcher.Constraint("Equal", 23, 24))
sketch4.addConstraint(Sketcher.Constraint("Equal", 24, 25))
sketch4.addConstraint(Sketcher.Constraint("Equal", 25, 26))
sketch4.addConstraint(Sketcher.Constraint("Equal", 26, 27))
sketch4.addConstraint(Sketcher.Constraint("Equal", 27, 28))
sketch4.addConstraint(Sketcher.Constraint("Equal", 28, 29))
sketch4.addConstraint(Sketcher.Constraint("Equal", 29, 30))
sketch4.addConstraint(Sketcher.Constraint("Equal", 30, 31))
sketch4.addConstraint(Sketcher.Constraint("Equal", 31, 32))
sketch4.addConstraint(Sketcher.Constraint("Equal", 32, 33))
sketch4.addConstraint(Sketcher.Constraint("Equal", 33, 34))
sketch4.addConstraint(Sketcher.Constraint("Equal", 34, 35))
sketch4.addConstraint(Sketcher.Constraint("Equal", 35, 36))
sketch4.addConstraint(Sketcher.Constraint("Equal", 36, 37))
sketch4.addConstraint(Sketcher.Constraint("Equal", 37, 38))
sketch4.addConstraint(Sketcher.Constraint("Equal", 38, 39))
sketch4.addConstraint(Sketcher.Constraint("Equal", 39, 40))
sketch4.addConstraint(Sketcher.Constraint("Equal", 40, 41))
sketch4.addConstraint(Sketcher.Constraint("Equal", 41, 42))
sketch4.addConstraint(Sketcher.Constraint("Equal", 42, 43))
sketch4.addConstraint(Sketcher.Constraint("Equal", 43, 44))
sketch4.addConstraint(Sketcher.Constraint("Equal", 44, 45))
sketch4.addConstraint(Sketcher.Constraint("Equal", 45, 46))
sketch4.addConstraint(Sketcher.Constraint("Equal", 46, 47))
sketch4.addConstraint(Sketcher.Constraint("Equal", 47, 48))
sketch4.addConstraint(Sketcher.Constraint("Equal", 48, 49))
sketch4.addConstraint(Sketcher.Constraint("Equal", 49, 50))
sketch4.addConstraint(Sketcher.Constraint("Equal", 50, 51))
sketch4.addConstraint(Sketcher.Constraint("Equal", 51, 52))
sketch4.addConstraint(Sketcher.Constraint("Equal", 52, 53))
sketch4.addConstraint(Sketcher.Constraint("Equal", 53, 54))
sketch4.addConstraint(Sketcher.Constraint("Equal", 54, 55))
sketch4.addConstraint(Sketcher.Constraint("Equal", 55, 56))
sketch4.addConstraint(Sketcher.Constraint("Equal", 56, 57))
sketch4.addConstraint(Sketcher.Constraint("Equal", 57, 58))
sketch4.addConstraint(Sketcher.Constraint("Symmetric", 28, 3, 30, 3, -1, 1))
sketch4.addConstraint(Sketcher.Constraint("Symmetric", 27, 3, 31, 3, -1, 1))
sketch4.addConstraint(Sketcher.Constraint("Symmetric", 26, 3, 32, 3, -1, 1))
sketch4.addConstraint(Sketcher.Constraint("Symmetric", 25, 3, 33, 3, -1, 1))
sketch4.addConstraint(Sketcher.Constraint("Symmetric", 24, 3, 34, 3, -1, 1))
sketch4.addConstraint(Sketcher.Constraint("Symmetric", 23, 3, 35, 3, -1, 1))
sketch4.addConstraint(Sketcher.Constraint("Symmetric", 22, 3, 36, 3, -1, 1))
sketch4.addConstraint(Sketcher.Constraint("Symmetric", 21, 3, 37, 3, -1, 1))
sketch4.addConstraint(Sketcher.Constraint("Symmetric", 20, 3, 38, 3, -1, 1))
sketch4.addConstraint(Sketcher.Constraint("Symmetric", 19, 3, 39, 3, -1, 1))
sketch4.addConstraint(Sketcher.Constraint("Symmetric", 18, 3, 40, 3, -1, 1))
sketch4.addConstraint(Sketcher.Constraint("Symmetric", 17, 3, 41, 3, -1, 1))
sketch4.addConstraint(Sketcher.Constraint("Symmetric", 16, 3, 42, 3, -1, 1))
sketch4.addConstraint(Sketcher.Constraint("Symmetric", 15, 3, 43, 3, -1, 1))
sketch4.addConstraint(Sketcher.Constraint("Symmetric", 14, 3, 44, 3, -1, 1))
sketch4.addConstraint(Sketcher.Constraint("Symmetric", 13, 3, 45, 3, -1, 1))
sketch4.addConstraint(Sketcher.Constraint("Symmetric", 12, 3, 46, 3, -1, 1))
sketch4.addConstraint(Sketcher.Constraint("Symmetric", 11, 3, 47, 3, -1, 1))
sketch4.addConstraint(Sketcher.Constraint("Symmetric", 10, 3, 48, 3, -1, 1))
sketch4.addConstraint(Sketcher.Constraint("Symmetric", 9, 3, 49, 3, -1, 1))
sketch4.addConstraint(Sketcher.Constraint("Symmetric", 8, 3, 50, 3, -1, 1))
sketch4.addConstraint(Sketcher.Constraint("Symmetric", 7, 3, 51, 3, -1, 1))
sketch4.addConstraint(Sketcher.Constraint("Symmetric", 6, 3, 52, 3, -1, 1))
sketch4.addConstraint(Sketcher.Constraint("Symmetric", 5, 3, 53, 3, -1, 1))
sketch4.addConstraint(Sketcher.Constraint("Symmetric", 4, 3, 54, 3, -1, 1))
sketch4.addConstraint(Sketcher.Constraint("Symmetric", 3, 3, 55, 3, -1, 1))
sketch4.addConstraint(Sketcher.Constraint("Symmetric", 2, 3, 56, 3, -1, 1))
sketch4.addConstraint(Sketcher.Constraint("Symmetric", 0, 3, 57, 3, -1, 1))
sketch4.addConstraint(Sketcher.Constraint("Symmetric", 1, 3, 58, 3, -1, 1))
sketch4.addConstraint(Sketcher.Constraint("PointOnObject", 0, 3, -2))
sketch4.addConstraint(Sketcher.Constraint("PointOnObject", 1, 3, -2))
sketch4.addConstraint(Sketcher.Constraint("PointOnObject", 2, 3, -2))
sketch4.addConstraint(Sketcher.Constraint("PointOnObject", 3, 3, -2))
sketch4.addConstraint(Sketcher.Constraint("PointOnObject", 4, 3, -2))
sketch4.addConstraint(Sketcher.Constraint("PointOnObject", 5, 3, -2))
sketch4.addConstraint(Sketcher.Constraint("PointOnObject", 6, 3, -2))
sketch4.addConstraint(Sketcher.Constraint("PointOnObject", 7, 3, -2))
sketch4.addConstraint(Sketcher.Constraint("PointOnObject", 8, 3, -2))
sketch4.addConstraint(Sketcher.Constraint("PointOnObject", 9, 3, -2))
sketch4.addConstraint(Sketcher.Constraint("PointOnObject", 10, 3, -2))
sketch4.addConstraint(Sketcher.Constraint("PointOnObject", 11, 3, -2))
sketch4.addConstraint(Sketcher.Constraint("PointOnObject", 12, 3, -2))
sketch4.addConstraint(Sketcher.Constraint("PointOnObject", 13, 3, -2))
sketch4.addConstraint(Sketcher.Constraint("PointOnObject", 14, 3, -2))
sketch4.addConstraint(Sketcher.Constraint("PointOnObject", 15, 3, -2))
sketch4.addConstraint(Sketcher.Constraint("PointOnObject", 16, 3, -2))
sketch4.addConstraint(Sketcher.Constraint("PointOnObject", 17, 3, -2))
sketch4.addConstraint(Sketcher.Constraint("PointOnObject", 18, 3, -2))
sketch4.addConstraint(Sketcher.Constraint("PointOnObject", 19, 3, -2))
sketch4.addConstraint(Sketcher.Constraint("PointOnObject", 20, 3, -2))
sketch4.addConstraint(Sketcher.Constraint("PointOnObject", 21, 3, -2))
sketch4.addConstraint(Sketcher.Constraint("PointOnObject", 22, 3, -2))
sketch4.addConstraint(Sketcher.Constraint("PointOnObject", 23, 3, -2))
sketch4.addConstraint(Sketcher.Constraint("PointOnObject", 24, 3, -2))
sketch4.addConstraint(Sketcher.Constraint("PointOnObject", 25, 3, -2))
sketch4.addConstraint(Sketcher.Constraint("PointOnObject", 26, 3, -2))
sketch4.addConstraint(Sketcher.Constraint("PointOnObject", 27, 3, -2))
sketch4.addConstraint(Sketcher.Constraint("PointOnObject", 28, 3, -2))
sketch4.addConstraint(Sketcher.Constraint("Diameter", 0, Q("0.163 in")))
sketch4.addConstraint(Sketcher.Constraint("DistanceY", 0, 3, -1, 1, Q("28 in")))
sketch4.addConstraint(Sketcher.Constraint("DistanceY", 1, 3, -1, 1, Q("29 in")))
sketch4.addConstraint(Sketcher.Constraint("DistanceY", 2, 3, -1, 1, Q("27 in")))
sketch4.addConstraint(Sketcher.Constraint("DistanceY", 3, 3, -1, 1, Q("26 in")))
sketch4.addConstraint(Sketcher.Constraint("DistanceY", 4, 3, -1, 1, Q("25 in")))
sketch4.addConstraint(Sketcher.Constraint("DistanceY", 5, 3, -1, 1, Q("24 in")))
sketch4.addConstraint(Sketcher.Constraint("DistanceY", 6, 3, -1, 1, Q("23 in")))
sketch4.addConstraint(Sketcher.Constraint("DistanceY", 7, 3, -1, 1, Q("22 in")))
sketch4.addConstraint(Sketcher.Constraint("DistanceY", 8, 3, -1, 1, Q("21 in")))
sketch4.addConstraint(Sketcher.Constraint("DistanceY", 9, 3, -1, 1, Q("20 in")))
sketch4.addConstraint(Sketcher.Constraint("DistanceY", 10, 3, -1, 1, Q("19 in")))
sketch4.addConstraint(Sketcher.Constraint("DistanceY", 11, 3, -1, 1, Q("18 in")))
sketch4.addConstraint(Sketcher.Constraint("DistanceY", 12, 3, -1, 1, Q("17 in")))
sketch4.addConstraint(Sketcher.Constraint("DistanceY", 13, 3, -1, 1, Q("16 in")))
sketch4.addConstraint(Sketcher.Constraint("DistanceY", 14, 3, -1, 1, Q("15 in")))
sketch4.addConstraint(Sketcher.Constraint("DistanceY", 15, 3, -1, 1, Q("14 in")))
sketch4.addConstraint(Sketcher.Constraint("DistanceY", 16, 3, -1, 1, Q("13 in")))
sketch4.addConstraint(Sketcher.Constraint("DistanceY", 17, 3, -1, 1, Q("12 in")))
sketch4.addConstraint(Sketcher.Constraint("DistanceY", 18, 3, -1, 1, Q("11 in")))
sketch4.addConstraint(Sketcher.Constraint("DistanceY", 19, 3, -1, 1, Q("10 in")))
sketch4.addConstraint(Sketcher.Constraint("DistanceY", 20, 3, -1, 1, Q("9 in")))
sketch4.addConstraint(Sketcher.Constraint("DistanceY", 21, 3, -1, 1, Q("8 in")))
sketch4.addConstraint(Sketcher.Constraint("DistanceY", 22, 3, -1, 1, Q("7 in")))
sketch4.addConstraint(Sketcher.Constraint("DistanceY", 23, 3, -1, 1, Q("6 in")))
sketch4.addConstraint(Sketcher.Constraint("DistanceY", 24, 3, -1, 1, Q("5 in")))
sketch4.addConstraint(Sketcher.Constraint("DistanceY", 25, 3, -1, 1, Q("4 in")))
sketch4.addConstraint(Sketcher.Constraint("DistanceY", 26, 3, -1, 1, Q("3 in")))
sketch4.addConstraint(Sketcher.Constraint("DistanceY", 27, 3, -1, 1, Q("2 in")))
sketch4.addConstraint(Sketcher.Constraint("DistanceY", 28, 3, -1, 1, Q("1 in")))
doc.recompute()
hole2 = body.newObject("PartDesign::Hole", "Hole001")
hole2.Profile = sketch4
hole2.ThreadType = "None"
hole2.Diameter = Q("0.163 in")
hole2.DepthType = "Dimension"
hole2.Depth = Q("2 in")
hole2.DrillPoint = "Flat"
hole2.Reversed = True
doc.recompute()

fillet = body.newObject("PartDesign::Fillet", "Fillet")
fillet.Base = (hole2, edges_at(hole2, [
    (-10.16, -22.86, 0),
    (10.16, -22.86, 0),
    (10.16, 22.86, 0),
    (-10.16, 22.86, 0),
]))
fillet.Radius = 0.5
doc.recompute()

fillet2 = body.newObject("PartDesign::Fillet", "Fillet001")
fillet2.Base = (fillet, edges_at(fillet, [
    (-12.7, 25.4, 0),
    (-12.7, -25.4, 0),
    (12.7, 25.4, 0),
    (12.7, -25.4, 0),
]))
fillet2.Radius = Q("0.1 in")

doc.recompute()
